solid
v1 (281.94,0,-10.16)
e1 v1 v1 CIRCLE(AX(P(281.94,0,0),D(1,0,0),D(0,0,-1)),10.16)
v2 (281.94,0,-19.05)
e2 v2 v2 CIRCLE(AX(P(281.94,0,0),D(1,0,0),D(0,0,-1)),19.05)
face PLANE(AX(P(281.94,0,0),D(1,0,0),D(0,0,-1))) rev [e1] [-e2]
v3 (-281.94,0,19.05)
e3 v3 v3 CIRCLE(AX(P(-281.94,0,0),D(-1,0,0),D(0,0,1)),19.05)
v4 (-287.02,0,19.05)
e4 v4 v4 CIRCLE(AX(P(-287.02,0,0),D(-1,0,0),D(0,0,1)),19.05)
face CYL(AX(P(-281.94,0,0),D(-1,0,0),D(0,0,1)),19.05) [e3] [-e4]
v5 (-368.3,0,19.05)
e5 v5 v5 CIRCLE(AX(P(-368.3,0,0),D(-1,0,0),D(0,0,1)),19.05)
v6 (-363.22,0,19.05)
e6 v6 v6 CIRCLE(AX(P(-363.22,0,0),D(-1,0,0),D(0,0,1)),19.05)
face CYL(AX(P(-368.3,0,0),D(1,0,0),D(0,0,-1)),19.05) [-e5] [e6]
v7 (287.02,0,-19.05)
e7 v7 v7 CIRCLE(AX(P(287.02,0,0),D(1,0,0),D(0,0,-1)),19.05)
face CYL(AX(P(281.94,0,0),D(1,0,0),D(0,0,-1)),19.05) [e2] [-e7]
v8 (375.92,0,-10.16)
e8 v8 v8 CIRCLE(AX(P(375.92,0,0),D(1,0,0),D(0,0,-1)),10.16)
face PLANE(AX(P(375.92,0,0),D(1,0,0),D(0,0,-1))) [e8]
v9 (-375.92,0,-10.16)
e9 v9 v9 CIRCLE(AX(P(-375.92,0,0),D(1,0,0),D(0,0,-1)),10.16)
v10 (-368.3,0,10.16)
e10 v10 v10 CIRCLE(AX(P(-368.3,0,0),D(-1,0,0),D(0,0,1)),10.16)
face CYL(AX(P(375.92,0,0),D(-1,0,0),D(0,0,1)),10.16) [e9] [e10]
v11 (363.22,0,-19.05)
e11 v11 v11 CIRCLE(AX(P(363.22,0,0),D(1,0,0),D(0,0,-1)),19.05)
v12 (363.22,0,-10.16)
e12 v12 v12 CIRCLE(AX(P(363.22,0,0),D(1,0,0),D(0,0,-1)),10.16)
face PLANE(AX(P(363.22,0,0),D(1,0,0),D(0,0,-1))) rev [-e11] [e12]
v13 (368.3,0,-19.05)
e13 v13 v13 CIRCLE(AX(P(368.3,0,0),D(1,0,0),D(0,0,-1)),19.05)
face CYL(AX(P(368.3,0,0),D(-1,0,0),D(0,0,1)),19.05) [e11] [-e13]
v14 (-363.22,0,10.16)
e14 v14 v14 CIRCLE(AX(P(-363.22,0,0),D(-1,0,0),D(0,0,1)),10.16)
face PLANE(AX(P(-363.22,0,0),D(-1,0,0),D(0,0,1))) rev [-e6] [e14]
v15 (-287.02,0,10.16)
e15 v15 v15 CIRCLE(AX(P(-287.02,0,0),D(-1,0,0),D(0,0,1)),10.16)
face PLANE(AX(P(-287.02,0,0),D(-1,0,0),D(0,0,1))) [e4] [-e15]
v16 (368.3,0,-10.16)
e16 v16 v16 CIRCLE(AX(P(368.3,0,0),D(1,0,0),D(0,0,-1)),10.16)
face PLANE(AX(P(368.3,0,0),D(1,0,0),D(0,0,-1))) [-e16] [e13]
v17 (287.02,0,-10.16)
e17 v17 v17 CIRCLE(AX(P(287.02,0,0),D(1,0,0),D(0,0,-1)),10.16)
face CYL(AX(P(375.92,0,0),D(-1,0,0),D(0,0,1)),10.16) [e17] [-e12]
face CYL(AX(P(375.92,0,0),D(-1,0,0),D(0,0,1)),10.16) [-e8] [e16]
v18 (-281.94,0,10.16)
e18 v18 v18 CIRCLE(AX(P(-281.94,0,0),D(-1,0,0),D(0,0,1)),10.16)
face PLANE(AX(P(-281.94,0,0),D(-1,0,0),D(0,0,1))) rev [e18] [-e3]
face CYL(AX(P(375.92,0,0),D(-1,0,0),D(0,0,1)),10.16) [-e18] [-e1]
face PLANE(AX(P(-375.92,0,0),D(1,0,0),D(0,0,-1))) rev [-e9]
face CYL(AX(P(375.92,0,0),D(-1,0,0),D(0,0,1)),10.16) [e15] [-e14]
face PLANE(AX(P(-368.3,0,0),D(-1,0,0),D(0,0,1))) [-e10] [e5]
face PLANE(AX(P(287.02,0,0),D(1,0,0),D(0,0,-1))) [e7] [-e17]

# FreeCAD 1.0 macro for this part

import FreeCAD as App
import Part
import Sketcher
Q = App.Units.Quantity

doc = App.newDocument("Part")
body = doc.addObject("PartDesign::Body", "Body")

sketch1 = body.newObject("Sketcher::SketchObject", "Sketch")
sketch1.AttachmentSupport = (doc.getObject("YZ_Plane"), [""])
sketch1.MapMode = "FlatFace"
sketch1.addGeometry(Part.Circle(App.Vector(0, 0, 0), App.Vector(0, 0, 1), 10.16), False)
sketch1.addConstraint([
    Sketcher.Constraint("Coincident", 0, 3, -1, 1),
    Sketcher.Constraint("Diameter", 0, Q("0.8 in")),
])
pad1 = body.newObject("PartDesign::Pad", "Pad")
pad1.Profile = sketch1
pad1.Length = Q("29.6 in")
pad1.Midplane = True

sketch2 = body.newObject("Sketcher::SketchObject", "Sketch001")
sketch2.AttachmentSupport = (doc.getObject("YZ_Plane"), [""])
sketch2.MapMode = "FlatFace"
sketch2.AttachmentOffset = App.Placement(App.Vector(0, 0, -14.3 * 25.4), App.Rotation())
sketch2.addGeometry(Part.Circle(App.Vector(0, 0, 0), App.Vector(0, 0, 1), 19.05), False)
sketch2.addConstraint([
    Sketcher.Constraint("Coincident", 0, 3, -1, 1),
    Sketcher.Constraint("Diameter", 0, Q("1.5 in")),
])
pad2 = body.newObject("PartDesign::Pad", "Pad001")
pad2.Profile = sketch2
pad2.Length = Q("0.2 in")
pad2.Reversed = True

sketch3 = body.newObject("Sketcher::SketchObject", "Sketch002")
sketch3.AttachmentSupport = (doc.getObject("YZ_Plane"), [""])
sketch3.MapMode = "FlatFace"
sketch3.AttachmentOffset = App.Placement(App.Vector(0, 0, -11.1 * 25.4), App.Rotation())
sketch3.addGeometry(Part.Circle(App.Vector(0, 0, 0), App.Vector(0, 0, 1), 19.05), False)
sketch3.addConstraint([
    Sketcher.Constraint("Coincident", 0, 3, -1, 1),
    Sketcher.Constraint("Diameter", 0, Q("1.5 in")),
])
pad3 = body.newObject("PartDesign::Pad", "Pad002")
pad3.Profile = sketch3
pad3.Length = Q("0.2 in")
pad3.Reversed = True

sketch4 = body.newObject("Sketcher::SketchObject", "Sketch003")
sketch4.AttachmentSupport = (doc.getObject("YZ_Plane"), [""])
sketch4.MapMode = "FlatFace"
sketch4.AttachmentOffset = App.Placement(App.Vector(0, 0, 14.5 * 25.4), App.Rotation())
sketch4.addGeometry(Part.Circle(App.Vector(0, 0, 0), App.Vector(0, 0, 1), 19.05), False)
sketch4.addConstraint([
    Sketcher.Constraint("Coincident", 0, 3, -1, 1),
    Sketcher.Constraint("Diameter", 0, Q("1.5 in")),
])
pad4 = body.newObject("PartDesign::Pad", "Pad003")
pad4.Profile = sketch4
pad4.Length = Q("0.2 in")
pad4.Reversed = True

sketch5 = body.newObject("Sketcher::SketchObject", "Sketch004")
sketch5.AttachmentSupport = (doc.getObject("YZ_Plane"), [""])
sketch5.MapMode = "FlatFace"
sketch5.AttachmentOffset = App.Placement(App.Vector(0, 0, 11.3 * 25.4), App.Rotation())
sketch5.addGeometry(Part.Circle(App.Vector(0, 0, 0), App.Vector(0, 0, 1), 19.05), False)
sketch5.addConstraint([
    Sketcher.Constraint("Coincident", 0, 3, -1, 1),
    Sketcher.Constraint("Diameter", 0, Q("1.5 in")),
])
pad5 = body.newObject("PartDesign::Pad", "Pad004")
pad5.Profile = sketch5
pad5.Length = Q("0.2 in")
pad5.Reversed = True

doc.recompute()
